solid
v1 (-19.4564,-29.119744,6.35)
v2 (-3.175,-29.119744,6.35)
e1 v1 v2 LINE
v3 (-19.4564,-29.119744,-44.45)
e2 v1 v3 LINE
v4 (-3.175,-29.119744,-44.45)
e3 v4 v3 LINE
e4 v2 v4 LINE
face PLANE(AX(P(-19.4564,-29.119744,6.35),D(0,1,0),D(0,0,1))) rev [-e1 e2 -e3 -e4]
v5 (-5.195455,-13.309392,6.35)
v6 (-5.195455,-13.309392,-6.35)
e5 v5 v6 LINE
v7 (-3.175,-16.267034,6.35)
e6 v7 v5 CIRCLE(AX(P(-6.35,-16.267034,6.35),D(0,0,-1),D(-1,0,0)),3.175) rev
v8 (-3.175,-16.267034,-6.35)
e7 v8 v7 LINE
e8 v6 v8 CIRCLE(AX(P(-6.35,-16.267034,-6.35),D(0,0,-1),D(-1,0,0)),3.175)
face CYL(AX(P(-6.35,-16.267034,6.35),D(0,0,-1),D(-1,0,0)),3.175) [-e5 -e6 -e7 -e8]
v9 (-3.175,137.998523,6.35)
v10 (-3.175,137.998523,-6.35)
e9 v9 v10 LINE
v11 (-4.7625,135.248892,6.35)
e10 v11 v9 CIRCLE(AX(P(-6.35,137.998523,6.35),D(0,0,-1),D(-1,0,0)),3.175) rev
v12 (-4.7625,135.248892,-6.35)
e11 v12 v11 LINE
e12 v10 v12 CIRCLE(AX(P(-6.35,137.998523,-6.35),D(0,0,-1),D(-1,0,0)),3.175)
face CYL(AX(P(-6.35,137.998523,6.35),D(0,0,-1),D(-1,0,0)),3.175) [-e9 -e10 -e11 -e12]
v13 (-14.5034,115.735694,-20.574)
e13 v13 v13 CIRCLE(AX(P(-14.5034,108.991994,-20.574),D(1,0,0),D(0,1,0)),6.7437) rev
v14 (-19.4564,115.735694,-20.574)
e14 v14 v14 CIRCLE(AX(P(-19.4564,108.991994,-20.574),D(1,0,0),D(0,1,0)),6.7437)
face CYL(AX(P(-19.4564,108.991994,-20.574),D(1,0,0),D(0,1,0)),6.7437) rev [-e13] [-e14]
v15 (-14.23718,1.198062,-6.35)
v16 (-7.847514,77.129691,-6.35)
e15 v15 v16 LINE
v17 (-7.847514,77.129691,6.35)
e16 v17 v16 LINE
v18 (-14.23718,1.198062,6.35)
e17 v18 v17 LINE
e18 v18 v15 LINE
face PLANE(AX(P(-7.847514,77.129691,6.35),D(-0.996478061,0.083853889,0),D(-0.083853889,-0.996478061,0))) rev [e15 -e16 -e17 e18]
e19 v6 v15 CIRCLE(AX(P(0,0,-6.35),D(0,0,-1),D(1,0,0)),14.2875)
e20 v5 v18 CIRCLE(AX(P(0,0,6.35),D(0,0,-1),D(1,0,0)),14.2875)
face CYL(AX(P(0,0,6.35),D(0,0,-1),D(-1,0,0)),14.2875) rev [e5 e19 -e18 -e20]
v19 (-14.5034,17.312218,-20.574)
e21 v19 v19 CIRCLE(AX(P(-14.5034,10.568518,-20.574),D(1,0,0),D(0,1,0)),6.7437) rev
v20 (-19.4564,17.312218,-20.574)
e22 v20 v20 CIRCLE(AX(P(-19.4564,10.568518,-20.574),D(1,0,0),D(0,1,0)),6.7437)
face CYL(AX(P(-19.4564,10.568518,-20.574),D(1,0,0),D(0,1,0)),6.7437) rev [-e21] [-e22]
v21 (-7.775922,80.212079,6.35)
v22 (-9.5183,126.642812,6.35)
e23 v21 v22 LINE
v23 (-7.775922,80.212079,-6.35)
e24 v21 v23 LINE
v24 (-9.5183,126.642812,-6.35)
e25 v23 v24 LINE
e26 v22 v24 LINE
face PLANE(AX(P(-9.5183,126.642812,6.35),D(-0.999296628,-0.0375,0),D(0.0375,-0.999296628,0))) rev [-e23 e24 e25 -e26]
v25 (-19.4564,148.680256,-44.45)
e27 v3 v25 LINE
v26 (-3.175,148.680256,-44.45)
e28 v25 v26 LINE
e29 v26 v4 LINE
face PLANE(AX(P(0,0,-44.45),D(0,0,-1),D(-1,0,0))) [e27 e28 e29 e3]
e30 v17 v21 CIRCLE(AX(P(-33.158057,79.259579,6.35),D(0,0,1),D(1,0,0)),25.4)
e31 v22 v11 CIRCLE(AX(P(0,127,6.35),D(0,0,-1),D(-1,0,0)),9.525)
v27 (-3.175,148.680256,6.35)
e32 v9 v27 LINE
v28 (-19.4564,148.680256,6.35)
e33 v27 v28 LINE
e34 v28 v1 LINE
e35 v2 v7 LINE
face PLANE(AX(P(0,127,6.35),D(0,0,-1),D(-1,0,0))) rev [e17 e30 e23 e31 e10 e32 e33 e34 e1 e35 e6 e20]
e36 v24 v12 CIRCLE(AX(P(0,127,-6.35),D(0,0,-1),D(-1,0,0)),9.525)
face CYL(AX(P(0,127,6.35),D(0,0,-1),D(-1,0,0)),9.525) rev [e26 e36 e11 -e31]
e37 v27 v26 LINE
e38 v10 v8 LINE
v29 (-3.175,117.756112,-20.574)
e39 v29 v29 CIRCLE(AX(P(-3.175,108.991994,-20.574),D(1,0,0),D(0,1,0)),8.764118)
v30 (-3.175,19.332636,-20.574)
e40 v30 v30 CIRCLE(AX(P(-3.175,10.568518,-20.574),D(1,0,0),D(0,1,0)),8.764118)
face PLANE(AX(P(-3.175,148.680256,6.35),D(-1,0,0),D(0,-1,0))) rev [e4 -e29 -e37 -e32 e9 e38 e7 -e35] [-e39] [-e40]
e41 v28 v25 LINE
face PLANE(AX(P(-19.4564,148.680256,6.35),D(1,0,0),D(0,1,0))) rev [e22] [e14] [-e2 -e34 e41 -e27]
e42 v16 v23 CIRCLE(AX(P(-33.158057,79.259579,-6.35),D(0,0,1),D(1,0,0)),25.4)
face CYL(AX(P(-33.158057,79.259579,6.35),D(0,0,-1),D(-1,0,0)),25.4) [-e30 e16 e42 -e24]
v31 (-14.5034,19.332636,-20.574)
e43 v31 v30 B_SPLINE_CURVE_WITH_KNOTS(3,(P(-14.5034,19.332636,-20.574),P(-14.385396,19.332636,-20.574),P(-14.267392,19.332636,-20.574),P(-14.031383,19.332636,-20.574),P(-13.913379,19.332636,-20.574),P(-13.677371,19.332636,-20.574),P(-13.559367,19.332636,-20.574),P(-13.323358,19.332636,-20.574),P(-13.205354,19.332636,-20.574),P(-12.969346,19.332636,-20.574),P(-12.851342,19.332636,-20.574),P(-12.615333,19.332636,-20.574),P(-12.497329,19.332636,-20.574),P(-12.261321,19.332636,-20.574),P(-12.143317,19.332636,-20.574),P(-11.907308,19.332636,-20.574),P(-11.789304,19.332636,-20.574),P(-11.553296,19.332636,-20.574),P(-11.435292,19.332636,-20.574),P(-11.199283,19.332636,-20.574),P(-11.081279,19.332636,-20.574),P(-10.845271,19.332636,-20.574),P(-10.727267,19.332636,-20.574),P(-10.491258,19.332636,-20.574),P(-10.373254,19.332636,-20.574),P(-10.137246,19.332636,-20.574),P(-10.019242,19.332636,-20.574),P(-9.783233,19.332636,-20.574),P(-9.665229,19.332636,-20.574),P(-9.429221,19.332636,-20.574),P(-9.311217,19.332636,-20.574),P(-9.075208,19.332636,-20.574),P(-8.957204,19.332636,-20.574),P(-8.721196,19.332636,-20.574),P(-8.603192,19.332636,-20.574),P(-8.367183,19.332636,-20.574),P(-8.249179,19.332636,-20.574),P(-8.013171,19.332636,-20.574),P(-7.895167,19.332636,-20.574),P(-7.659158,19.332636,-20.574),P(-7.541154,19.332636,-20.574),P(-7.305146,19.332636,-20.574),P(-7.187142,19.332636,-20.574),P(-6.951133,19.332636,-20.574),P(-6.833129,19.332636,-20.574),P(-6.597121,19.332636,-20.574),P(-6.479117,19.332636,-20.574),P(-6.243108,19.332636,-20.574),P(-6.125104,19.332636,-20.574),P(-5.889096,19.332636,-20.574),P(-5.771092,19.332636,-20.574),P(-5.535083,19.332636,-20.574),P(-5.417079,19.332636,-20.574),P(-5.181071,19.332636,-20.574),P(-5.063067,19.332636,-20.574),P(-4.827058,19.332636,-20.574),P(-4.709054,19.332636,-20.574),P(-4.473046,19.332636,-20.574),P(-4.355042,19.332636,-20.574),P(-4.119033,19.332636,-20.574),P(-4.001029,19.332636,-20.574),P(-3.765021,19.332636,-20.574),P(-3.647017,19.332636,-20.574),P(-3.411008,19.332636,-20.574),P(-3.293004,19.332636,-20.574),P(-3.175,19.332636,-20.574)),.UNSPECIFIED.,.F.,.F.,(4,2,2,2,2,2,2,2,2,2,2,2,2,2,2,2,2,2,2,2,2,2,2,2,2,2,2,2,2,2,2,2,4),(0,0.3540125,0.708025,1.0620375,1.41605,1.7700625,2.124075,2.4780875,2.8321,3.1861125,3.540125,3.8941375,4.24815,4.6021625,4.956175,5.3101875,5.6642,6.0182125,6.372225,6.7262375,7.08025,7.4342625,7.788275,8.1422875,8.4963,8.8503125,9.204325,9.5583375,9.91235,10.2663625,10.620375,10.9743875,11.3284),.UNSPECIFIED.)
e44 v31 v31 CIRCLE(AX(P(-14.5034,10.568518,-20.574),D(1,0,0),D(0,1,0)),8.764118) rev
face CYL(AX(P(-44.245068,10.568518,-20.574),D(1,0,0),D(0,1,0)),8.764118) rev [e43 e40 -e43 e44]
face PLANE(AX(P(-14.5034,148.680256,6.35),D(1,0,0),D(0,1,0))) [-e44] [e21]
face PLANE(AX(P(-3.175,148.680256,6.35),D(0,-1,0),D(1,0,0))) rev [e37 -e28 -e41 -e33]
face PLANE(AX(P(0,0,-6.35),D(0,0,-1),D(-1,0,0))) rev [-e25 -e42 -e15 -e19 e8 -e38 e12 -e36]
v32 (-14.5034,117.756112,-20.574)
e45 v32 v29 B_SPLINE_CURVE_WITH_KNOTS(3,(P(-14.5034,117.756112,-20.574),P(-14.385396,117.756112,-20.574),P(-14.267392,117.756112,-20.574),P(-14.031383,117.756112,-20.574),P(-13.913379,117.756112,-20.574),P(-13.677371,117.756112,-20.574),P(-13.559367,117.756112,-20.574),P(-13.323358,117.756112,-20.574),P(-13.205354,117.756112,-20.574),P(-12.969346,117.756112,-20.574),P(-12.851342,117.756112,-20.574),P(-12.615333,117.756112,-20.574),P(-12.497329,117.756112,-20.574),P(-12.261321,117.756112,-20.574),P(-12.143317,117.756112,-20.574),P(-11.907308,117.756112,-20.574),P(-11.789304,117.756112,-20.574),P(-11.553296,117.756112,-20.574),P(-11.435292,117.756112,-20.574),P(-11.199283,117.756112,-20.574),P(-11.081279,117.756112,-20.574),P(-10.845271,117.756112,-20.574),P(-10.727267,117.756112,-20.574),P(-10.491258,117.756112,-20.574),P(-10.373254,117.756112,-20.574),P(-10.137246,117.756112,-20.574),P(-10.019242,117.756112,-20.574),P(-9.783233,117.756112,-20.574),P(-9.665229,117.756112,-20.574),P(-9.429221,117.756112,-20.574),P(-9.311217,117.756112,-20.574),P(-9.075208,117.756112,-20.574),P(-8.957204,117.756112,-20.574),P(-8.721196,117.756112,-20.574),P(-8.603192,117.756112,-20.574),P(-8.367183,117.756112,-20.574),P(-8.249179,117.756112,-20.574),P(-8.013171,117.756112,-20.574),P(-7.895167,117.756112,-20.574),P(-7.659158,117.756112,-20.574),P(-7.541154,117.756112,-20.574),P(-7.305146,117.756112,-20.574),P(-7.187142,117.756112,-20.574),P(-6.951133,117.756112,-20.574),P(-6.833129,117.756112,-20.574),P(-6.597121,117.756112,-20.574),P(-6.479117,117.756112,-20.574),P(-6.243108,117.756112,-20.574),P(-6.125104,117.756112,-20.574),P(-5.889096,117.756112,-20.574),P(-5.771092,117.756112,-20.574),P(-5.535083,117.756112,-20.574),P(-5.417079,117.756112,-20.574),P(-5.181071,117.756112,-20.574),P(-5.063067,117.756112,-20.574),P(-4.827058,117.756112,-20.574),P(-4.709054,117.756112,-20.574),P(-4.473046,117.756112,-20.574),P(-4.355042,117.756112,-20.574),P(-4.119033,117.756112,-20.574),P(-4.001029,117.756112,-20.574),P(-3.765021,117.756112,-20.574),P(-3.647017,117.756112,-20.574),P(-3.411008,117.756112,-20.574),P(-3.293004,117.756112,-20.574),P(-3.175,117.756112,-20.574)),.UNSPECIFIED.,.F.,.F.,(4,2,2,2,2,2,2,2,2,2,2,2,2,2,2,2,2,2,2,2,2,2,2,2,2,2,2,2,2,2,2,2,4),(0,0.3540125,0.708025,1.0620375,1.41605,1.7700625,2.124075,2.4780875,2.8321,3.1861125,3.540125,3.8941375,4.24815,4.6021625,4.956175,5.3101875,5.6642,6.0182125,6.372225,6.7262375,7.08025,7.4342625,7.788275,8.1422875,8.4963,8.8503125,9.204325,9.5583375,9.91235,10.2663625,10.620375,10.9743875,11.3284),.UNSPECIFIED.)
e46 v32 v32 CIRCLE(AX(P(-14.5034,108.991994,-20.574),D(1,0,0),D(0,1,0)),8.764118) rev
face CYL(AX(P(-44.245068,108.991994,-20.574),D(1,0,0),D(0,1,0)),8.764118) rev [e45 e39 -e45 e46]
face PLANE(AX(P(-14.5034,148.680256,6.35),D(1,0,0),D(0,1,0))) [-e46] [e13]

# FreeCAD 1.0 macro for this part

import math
import FreeCAD as App
import Part
import Sketcher
Q = App.Units.Quantity


def edges_at(feature, points):
    """Names of the edges that pass closest to the given points."""
    edges = feature.Shape.Edges
    near = lambda p: min(range(len(edges)), key=lambda i: edges[i].distToShape(Part.Vertex(*p))[0])
    return sorted({f"Edge{near(p) + 1}" for p in points})


def add_polygon(sketch, points):
    """Adds a closed chain of lines whose ends are joined by coincident constraints."""
    first, n = sketch.GeometryCount, len(points)
    for a, b in zip(points, points[1:] + points[:1]):
        sketch.addGeometry(Part.LineSegment(App.Vector(*a, 0), App.Vector(*b, 0)), False)
    for i in range(n):
        sketch.addConstraint(Sketcher.Constraint("Coincident", first + i, 2, first + (i + 1) % n, 1))

doc = App.newDocument("Part")
params = doc.addObject("Spreadsheet::Sheet", "Params")
for row, (alias, value) in enumerate([
    ("sketch1_radius", "1 in"),
    ("sketch1_height", "7 in"),
    ("sketch1_length", "3 in"),
    ("sketch1_height2", "0.5 in"),
    ("sketch1_radius2", "0.5625 in"),
    ("pad1_length", "0.5 in"),
    ("fillet_radius", "0.125 in"),
    ("sketch2_height", "7 in"),
    ("sketch2_width", "0.641 in"),
    ("pad2_length", "1.5 in"),
    ("sketch3_diameter", "0.531 in"),
    ("pocket2_length", "0.446 in"),
], start=1):
    params.set(f"A{row}", alias)
    params.set(f"B{row}", "=" + value)
    params.setAlias(f"B{row}", alias)

body = doc.addObject("PartDesign::Body", "Body")

# Sketch on XY plane
sketch1 = body.newObject("Sketcher::SketchObject", "Sketch")
sketch1.AttachmentSupport = (doc.getObject("XY_Plane"), [""])
sketch1.MapMode = "FlatFace"
sketch1.addGeometry(Part.LineSegment(App.Vector(-3.175, 148.680256, 0), App.Vector(-19.4564, 148.680256, 0)), False)
sketch1.addGeometry(Part.LineSegment(App.Vector(-19.4564, 148.680256, 0), App.Vector(-19.4564, -29.119744, 0)), False)
sketch1.addGeometry(Part.LineSegment(App.Vector(-19.4564, -29.119744, 0), App.Vector(-3.175, -29.119744, 0)), False)
sketch1.addGeometry(Part.LineSegment(App.Vector(-3.175, -29.119744, 0), App.Vector(-3.175, -13.930256, 0)), False)
sketch1.addGeometry(Part.ArcOfCircle(Part.Circle(App.Vector(0, 0, 0), App.Vector(0, 0, 1), 14.2875), math.radians(175.189878), math.radians(257.160412)), False)
sketch1.addGeometry(Part.LineSegment(App.Vector(-14.23718, 1.198062, 0), App.Vector(-7.847514, 77.129691, 0)), False)
sketch1.addGeometry(Part.ArcOfCircle(Part.Circle(App.Vector(-33.158057, 79.259579, 0), App.Vector(0, 0, 1), 25.4), math.radians(-4.810122), math.radians(2.149096)), False)
sketch1.addGeometry(Part.LineSegment(App.Vector(-7.775922, 80.212079, 0), App.Vector(-9.5183, 126.642813, 0)), False)
sketch1.addGeometry(Part.ArcOfCircle(Part.Circle(App.Vector(0, 127, 0), App.Vector(0, 0, 1), 9.525), math.radians(109.471221), math.radians(182.149096)), False)
sketch1.addGeometry(Part.LineSegment(App.Vector(-3.175, 135.980256, 0), App.Vector(-3.175, 148.680256, 0)), False)
sketch1.addConstraint(Sketcher.Constraint("Coincident", 0, 2, 1, 1))
sketch1.addConstraint(Sketcher.Constraint("Coincident", 1, 2, 2, 1))
sketch1.addConstraint(Sketcher.Constraint("Coincident", 2, 2, 3, 1))
sketch1.addConstraint(Sketcher.Constraint("Coincident", 3, 2, 4, 2))
sketch1.addConstraint(Sketcher.Constraint("Tangent", 4, 1, 5, 1))
sketch1.addConstraint(Sketcher.Constraint("Tangent", 5, 2, 6, 1))
sketch1.addConstraint(Sketcher.Constraint("Tangent", 6, 2, 7, 1))
sketch1.addConstraint(Sketcher.Constraint("Tangent", 7, 2, 8, 2))
sketch1.addConstraint(Sketcher.Constraint("Coincident", 8, 1, 9, 1))
sketch1.addConstraint(Sketcher.Constraint("Coincident", 9, 2, 0, 1))
sketch1.addConstraint(Sketcher.Constraint("Horizontal", 0))
sketch1.addConstraint(Sketcher.Constraint("Vertical", 1))
sketch1.addConstraint(Sketcher.Constraint("Horizontal", 2))
sketch1.addConstraint(Sketcher.Constraint("Vertical", 3))
sketch1.addConstraint(Sketcher.Constraint("Vertical", 9))
sketch1.addConstraint(Sketcher.Constraint("Coincident", 4, 3, -1, 1))
sketch1.addConstraint(Sketcher.Constraint("PointOnObject", 8, 3, -2))
sketch1.addConstraint(Sketcher.Constraint("Vertical", 3, 2, 8, 1))
sketch1.addConstraint(Sketcher.Constraint("Radius", 6, Q("1 in")))
sketch1.addConstraint(Sketcher.Constraint("DistanceY", 1, 2, 1, 1, Q("7 in")))
sketch1.addConstraint(Sketcher.Constraint("Distance", 5, Q("3 in")))
sketch1.addConstraint(Sketcher.Constraint("DistanceY", 9, 1, 9, 2, Q("0.5 in")))
sketch1.addConstraint(Sketcher.Constraint("DistanceY", -1, 1, 8, 3, Q("5 in")))
sketch1.addConstraint(Sketcher.Constraint("Radius", 4, Q("0.5625 in")))
sketch1.addConstraint(Sketcher.Constraint("Radius", 8, Q("0.375 in")))
sketch1.addConstraint(Sketcher.Constraint("DistanceX", 0, 2, 0, 1, Q("0.641 in")))
sketch1.addConstraint(Sketcher.Constraint("DistanceX", 0, 2, -1, 1, Q("0.766 in")))
sketch1.addConstraint(Sketcher.Constraint("DistanceY", 6, 3, 6, 2, Q("0.0375 in")))
sketch1.setExpression("Constraints[18]", "Params.sketch1_radius")
sketch1.setExpression("Constraints[19]", "Params.sketch1_height")
sketch1.setExpression("Constraints[20]", "Params.sketch1_length")
sketch1.setExpression("Constraints[21]", "Params.sketch1_height2")
sketch1.setExpression("Constraints[23]", "Params.sketch1_radius2")
pad1 = body.newObject("PartDesign::Pad", "Pad")
pad1.Profile = sketch1
pad1.setExpression("Length", "Params.pad1_length")
pad1.Midplane = True
doc.recompute()

fillet = body.newObject("PartDesign::Fillet", "Fillet")
fillet.Base = (pad1, edges_at(pad1, [(-3.175, 135.98, 0), (-3.175, -13.93, 0)]))
fillet.setExpression("Radius", "Params.fillet_radius")

# Sketch on XY plane
sketch2 = body.newObject("Sketcher::SketchObject", "Sketch001")
sketch2.AttachmentSupport = (doc.getObject("XY_Plane"), [""])
sketch2.MapMode = "FlatFace"
sketch2.AttachmentOffset = App.Placement(App.Vector(0, 0, -0.25 * 25.4), App.Rotation())
add_polygon(sketch2, [(-3.175, 148.680256), (-3.175, -29.119744), (-19.4564, -29.119744), (-19.4564, 148.680256)])  # lines 0-3
sketch2.addConstraint(Sketcher.Constraint("Vertical", 0))
sketch2.addConstraint(Sketcher.Constraint("Horizontal", 1))
sketch2.addConstraint(Sketcher.Constraint("Vertical", 2))
sketch2.addConstraint(Sketcher.Constraint("Horizontal", 3))
sketch2.addConstraint(Sketcher.Constraint("DistanceY", 0, 2, 0, 1, Q("7 in")))
sketch2.addConstraint(Sketcher.Constraint("DistanceX", 1, 2, 1, 1, Q("0.641 in")))
sketch2.addConstraint(Sketcher.Constraint("DistanceX", 0, 2, -1, 1, Q("0.125 in")))
sketch2.addConstraint(Sketcher.Constraint("DistanceY", 0, 2, -1, 1, 29.119744))
sketch2.setExpression("Constraints[8]", "Params.sketch2_height")
sketch2.setExpression("Constraints[9]", "Params.sketch2_width")
pad2 = body.newObject("PartDesign::Pad", "Pad001")
pad2.Profile = sketch2
pad2.setExpression("Length", "Params.pad2_length")
pad2.Reversed = True

# Sketch on YZ plane
sketch3 = body.newObject("Sketcher::SketchObject", "Sketch002")
sketch3.AttachmentSupport = (doc.getObject("YZ_Plane"), [""])
sketch3.MapMode = "FlatFace"
sketch3.AttachmentOffset = App.Placement(App.Vector(0, 0, -0.125 * 25.4), App.Rotation())
sketch3.addGeometry(Part.Circle(App.Vector(108.991994, -20.574, 0), App.Vector(0, 0, 1), 6.7437), False)
sketch3.addGeometry(Part.Circle(App.Vector(10.568518, -20.574, 0), App.Vector(0, 0, 1), 6.7437), False)
sketch3.addConstraint(Sketcher.Constraint("Equal", 0, 1))
sketch3.addConstraint(Sketcher.Constraint("Horizontal", 0, 3, 1, 3))
sketch3.addConstraint(Sketcher.Constraint("Diameter", 0, Q("0.531 in")))
sketch3.addConstraint(Sketcher.Constraint("DistanceY", 0, 3, -1, 1, Q("0.81 in")))
sketch3.addConstraint(Sketcher.Constraint("DistanceX", -1, 1, 1, 3, 10.568518))
sketch3.addConstraint(Sketcher.Constraint("DistanceX", -1, 1, 0, 3, 108.991994))
sketch3.setExpression("Constraints[2]", "Params.sketch3_diameter")
pocket1 = body.newObject("PartDesign::Pocket", "Pocket")
pocket1.Profile = sketch3
pocket1.Type = "ThroughAll"

# Sketch on YZ plane
sketch4 = body.newObject("Sketcher::SketchObject", "Sketch003")
sketch4.AttachmentSupport = (doc.getObject("YZ_Plane"), [""])
sketch4.MapMode = "FlatFace"
sketch4.AttachmentOffset = App.Placement(App.Vector(0, 0, -0.125 * 25.4), App.Rotation())
sketch4.addGeometry(Part.Circle(App.Vector(108.991994, -20.574, 0), App.Vector(0, 0, 1), 8.764118), False)
sketch4.addGeometry(Part.Circle(App.Vector(10.568518, -20.574, 0), App.Vector(0, 0, 1), 8.764118), False)
sketch4.addConstraint(Sketcher.Constraint("Equal", 0, 1))
sketch4.addConstraint(Sketcher.Constraint("Horizontal", 0, 3, 1, 3))
sketch4.addConstraint(Sketcher.Constraint("DistanceY", 0, 3, -1, 1, Q("0.81 in")))
sketch4.addConstraint(Sketcher.Constraint("Diameter", 0, 17.528235))
sketch4.addConstraint(Sketcher.Constraint("DistanceX", -1, 1, 1, 3, 10.568518))
sketch4.addConstraint(Sketcher.Constraint("DistanceX", -1, 1, 0, 3, 108.991994))
pocket2 = body.newObject("PartDesign::Pocket", "Pocket001")
pocket2.Profile = sketch4
pocket2.setExpression("Length", "Params.pocket2_length")

doc.recompute()
